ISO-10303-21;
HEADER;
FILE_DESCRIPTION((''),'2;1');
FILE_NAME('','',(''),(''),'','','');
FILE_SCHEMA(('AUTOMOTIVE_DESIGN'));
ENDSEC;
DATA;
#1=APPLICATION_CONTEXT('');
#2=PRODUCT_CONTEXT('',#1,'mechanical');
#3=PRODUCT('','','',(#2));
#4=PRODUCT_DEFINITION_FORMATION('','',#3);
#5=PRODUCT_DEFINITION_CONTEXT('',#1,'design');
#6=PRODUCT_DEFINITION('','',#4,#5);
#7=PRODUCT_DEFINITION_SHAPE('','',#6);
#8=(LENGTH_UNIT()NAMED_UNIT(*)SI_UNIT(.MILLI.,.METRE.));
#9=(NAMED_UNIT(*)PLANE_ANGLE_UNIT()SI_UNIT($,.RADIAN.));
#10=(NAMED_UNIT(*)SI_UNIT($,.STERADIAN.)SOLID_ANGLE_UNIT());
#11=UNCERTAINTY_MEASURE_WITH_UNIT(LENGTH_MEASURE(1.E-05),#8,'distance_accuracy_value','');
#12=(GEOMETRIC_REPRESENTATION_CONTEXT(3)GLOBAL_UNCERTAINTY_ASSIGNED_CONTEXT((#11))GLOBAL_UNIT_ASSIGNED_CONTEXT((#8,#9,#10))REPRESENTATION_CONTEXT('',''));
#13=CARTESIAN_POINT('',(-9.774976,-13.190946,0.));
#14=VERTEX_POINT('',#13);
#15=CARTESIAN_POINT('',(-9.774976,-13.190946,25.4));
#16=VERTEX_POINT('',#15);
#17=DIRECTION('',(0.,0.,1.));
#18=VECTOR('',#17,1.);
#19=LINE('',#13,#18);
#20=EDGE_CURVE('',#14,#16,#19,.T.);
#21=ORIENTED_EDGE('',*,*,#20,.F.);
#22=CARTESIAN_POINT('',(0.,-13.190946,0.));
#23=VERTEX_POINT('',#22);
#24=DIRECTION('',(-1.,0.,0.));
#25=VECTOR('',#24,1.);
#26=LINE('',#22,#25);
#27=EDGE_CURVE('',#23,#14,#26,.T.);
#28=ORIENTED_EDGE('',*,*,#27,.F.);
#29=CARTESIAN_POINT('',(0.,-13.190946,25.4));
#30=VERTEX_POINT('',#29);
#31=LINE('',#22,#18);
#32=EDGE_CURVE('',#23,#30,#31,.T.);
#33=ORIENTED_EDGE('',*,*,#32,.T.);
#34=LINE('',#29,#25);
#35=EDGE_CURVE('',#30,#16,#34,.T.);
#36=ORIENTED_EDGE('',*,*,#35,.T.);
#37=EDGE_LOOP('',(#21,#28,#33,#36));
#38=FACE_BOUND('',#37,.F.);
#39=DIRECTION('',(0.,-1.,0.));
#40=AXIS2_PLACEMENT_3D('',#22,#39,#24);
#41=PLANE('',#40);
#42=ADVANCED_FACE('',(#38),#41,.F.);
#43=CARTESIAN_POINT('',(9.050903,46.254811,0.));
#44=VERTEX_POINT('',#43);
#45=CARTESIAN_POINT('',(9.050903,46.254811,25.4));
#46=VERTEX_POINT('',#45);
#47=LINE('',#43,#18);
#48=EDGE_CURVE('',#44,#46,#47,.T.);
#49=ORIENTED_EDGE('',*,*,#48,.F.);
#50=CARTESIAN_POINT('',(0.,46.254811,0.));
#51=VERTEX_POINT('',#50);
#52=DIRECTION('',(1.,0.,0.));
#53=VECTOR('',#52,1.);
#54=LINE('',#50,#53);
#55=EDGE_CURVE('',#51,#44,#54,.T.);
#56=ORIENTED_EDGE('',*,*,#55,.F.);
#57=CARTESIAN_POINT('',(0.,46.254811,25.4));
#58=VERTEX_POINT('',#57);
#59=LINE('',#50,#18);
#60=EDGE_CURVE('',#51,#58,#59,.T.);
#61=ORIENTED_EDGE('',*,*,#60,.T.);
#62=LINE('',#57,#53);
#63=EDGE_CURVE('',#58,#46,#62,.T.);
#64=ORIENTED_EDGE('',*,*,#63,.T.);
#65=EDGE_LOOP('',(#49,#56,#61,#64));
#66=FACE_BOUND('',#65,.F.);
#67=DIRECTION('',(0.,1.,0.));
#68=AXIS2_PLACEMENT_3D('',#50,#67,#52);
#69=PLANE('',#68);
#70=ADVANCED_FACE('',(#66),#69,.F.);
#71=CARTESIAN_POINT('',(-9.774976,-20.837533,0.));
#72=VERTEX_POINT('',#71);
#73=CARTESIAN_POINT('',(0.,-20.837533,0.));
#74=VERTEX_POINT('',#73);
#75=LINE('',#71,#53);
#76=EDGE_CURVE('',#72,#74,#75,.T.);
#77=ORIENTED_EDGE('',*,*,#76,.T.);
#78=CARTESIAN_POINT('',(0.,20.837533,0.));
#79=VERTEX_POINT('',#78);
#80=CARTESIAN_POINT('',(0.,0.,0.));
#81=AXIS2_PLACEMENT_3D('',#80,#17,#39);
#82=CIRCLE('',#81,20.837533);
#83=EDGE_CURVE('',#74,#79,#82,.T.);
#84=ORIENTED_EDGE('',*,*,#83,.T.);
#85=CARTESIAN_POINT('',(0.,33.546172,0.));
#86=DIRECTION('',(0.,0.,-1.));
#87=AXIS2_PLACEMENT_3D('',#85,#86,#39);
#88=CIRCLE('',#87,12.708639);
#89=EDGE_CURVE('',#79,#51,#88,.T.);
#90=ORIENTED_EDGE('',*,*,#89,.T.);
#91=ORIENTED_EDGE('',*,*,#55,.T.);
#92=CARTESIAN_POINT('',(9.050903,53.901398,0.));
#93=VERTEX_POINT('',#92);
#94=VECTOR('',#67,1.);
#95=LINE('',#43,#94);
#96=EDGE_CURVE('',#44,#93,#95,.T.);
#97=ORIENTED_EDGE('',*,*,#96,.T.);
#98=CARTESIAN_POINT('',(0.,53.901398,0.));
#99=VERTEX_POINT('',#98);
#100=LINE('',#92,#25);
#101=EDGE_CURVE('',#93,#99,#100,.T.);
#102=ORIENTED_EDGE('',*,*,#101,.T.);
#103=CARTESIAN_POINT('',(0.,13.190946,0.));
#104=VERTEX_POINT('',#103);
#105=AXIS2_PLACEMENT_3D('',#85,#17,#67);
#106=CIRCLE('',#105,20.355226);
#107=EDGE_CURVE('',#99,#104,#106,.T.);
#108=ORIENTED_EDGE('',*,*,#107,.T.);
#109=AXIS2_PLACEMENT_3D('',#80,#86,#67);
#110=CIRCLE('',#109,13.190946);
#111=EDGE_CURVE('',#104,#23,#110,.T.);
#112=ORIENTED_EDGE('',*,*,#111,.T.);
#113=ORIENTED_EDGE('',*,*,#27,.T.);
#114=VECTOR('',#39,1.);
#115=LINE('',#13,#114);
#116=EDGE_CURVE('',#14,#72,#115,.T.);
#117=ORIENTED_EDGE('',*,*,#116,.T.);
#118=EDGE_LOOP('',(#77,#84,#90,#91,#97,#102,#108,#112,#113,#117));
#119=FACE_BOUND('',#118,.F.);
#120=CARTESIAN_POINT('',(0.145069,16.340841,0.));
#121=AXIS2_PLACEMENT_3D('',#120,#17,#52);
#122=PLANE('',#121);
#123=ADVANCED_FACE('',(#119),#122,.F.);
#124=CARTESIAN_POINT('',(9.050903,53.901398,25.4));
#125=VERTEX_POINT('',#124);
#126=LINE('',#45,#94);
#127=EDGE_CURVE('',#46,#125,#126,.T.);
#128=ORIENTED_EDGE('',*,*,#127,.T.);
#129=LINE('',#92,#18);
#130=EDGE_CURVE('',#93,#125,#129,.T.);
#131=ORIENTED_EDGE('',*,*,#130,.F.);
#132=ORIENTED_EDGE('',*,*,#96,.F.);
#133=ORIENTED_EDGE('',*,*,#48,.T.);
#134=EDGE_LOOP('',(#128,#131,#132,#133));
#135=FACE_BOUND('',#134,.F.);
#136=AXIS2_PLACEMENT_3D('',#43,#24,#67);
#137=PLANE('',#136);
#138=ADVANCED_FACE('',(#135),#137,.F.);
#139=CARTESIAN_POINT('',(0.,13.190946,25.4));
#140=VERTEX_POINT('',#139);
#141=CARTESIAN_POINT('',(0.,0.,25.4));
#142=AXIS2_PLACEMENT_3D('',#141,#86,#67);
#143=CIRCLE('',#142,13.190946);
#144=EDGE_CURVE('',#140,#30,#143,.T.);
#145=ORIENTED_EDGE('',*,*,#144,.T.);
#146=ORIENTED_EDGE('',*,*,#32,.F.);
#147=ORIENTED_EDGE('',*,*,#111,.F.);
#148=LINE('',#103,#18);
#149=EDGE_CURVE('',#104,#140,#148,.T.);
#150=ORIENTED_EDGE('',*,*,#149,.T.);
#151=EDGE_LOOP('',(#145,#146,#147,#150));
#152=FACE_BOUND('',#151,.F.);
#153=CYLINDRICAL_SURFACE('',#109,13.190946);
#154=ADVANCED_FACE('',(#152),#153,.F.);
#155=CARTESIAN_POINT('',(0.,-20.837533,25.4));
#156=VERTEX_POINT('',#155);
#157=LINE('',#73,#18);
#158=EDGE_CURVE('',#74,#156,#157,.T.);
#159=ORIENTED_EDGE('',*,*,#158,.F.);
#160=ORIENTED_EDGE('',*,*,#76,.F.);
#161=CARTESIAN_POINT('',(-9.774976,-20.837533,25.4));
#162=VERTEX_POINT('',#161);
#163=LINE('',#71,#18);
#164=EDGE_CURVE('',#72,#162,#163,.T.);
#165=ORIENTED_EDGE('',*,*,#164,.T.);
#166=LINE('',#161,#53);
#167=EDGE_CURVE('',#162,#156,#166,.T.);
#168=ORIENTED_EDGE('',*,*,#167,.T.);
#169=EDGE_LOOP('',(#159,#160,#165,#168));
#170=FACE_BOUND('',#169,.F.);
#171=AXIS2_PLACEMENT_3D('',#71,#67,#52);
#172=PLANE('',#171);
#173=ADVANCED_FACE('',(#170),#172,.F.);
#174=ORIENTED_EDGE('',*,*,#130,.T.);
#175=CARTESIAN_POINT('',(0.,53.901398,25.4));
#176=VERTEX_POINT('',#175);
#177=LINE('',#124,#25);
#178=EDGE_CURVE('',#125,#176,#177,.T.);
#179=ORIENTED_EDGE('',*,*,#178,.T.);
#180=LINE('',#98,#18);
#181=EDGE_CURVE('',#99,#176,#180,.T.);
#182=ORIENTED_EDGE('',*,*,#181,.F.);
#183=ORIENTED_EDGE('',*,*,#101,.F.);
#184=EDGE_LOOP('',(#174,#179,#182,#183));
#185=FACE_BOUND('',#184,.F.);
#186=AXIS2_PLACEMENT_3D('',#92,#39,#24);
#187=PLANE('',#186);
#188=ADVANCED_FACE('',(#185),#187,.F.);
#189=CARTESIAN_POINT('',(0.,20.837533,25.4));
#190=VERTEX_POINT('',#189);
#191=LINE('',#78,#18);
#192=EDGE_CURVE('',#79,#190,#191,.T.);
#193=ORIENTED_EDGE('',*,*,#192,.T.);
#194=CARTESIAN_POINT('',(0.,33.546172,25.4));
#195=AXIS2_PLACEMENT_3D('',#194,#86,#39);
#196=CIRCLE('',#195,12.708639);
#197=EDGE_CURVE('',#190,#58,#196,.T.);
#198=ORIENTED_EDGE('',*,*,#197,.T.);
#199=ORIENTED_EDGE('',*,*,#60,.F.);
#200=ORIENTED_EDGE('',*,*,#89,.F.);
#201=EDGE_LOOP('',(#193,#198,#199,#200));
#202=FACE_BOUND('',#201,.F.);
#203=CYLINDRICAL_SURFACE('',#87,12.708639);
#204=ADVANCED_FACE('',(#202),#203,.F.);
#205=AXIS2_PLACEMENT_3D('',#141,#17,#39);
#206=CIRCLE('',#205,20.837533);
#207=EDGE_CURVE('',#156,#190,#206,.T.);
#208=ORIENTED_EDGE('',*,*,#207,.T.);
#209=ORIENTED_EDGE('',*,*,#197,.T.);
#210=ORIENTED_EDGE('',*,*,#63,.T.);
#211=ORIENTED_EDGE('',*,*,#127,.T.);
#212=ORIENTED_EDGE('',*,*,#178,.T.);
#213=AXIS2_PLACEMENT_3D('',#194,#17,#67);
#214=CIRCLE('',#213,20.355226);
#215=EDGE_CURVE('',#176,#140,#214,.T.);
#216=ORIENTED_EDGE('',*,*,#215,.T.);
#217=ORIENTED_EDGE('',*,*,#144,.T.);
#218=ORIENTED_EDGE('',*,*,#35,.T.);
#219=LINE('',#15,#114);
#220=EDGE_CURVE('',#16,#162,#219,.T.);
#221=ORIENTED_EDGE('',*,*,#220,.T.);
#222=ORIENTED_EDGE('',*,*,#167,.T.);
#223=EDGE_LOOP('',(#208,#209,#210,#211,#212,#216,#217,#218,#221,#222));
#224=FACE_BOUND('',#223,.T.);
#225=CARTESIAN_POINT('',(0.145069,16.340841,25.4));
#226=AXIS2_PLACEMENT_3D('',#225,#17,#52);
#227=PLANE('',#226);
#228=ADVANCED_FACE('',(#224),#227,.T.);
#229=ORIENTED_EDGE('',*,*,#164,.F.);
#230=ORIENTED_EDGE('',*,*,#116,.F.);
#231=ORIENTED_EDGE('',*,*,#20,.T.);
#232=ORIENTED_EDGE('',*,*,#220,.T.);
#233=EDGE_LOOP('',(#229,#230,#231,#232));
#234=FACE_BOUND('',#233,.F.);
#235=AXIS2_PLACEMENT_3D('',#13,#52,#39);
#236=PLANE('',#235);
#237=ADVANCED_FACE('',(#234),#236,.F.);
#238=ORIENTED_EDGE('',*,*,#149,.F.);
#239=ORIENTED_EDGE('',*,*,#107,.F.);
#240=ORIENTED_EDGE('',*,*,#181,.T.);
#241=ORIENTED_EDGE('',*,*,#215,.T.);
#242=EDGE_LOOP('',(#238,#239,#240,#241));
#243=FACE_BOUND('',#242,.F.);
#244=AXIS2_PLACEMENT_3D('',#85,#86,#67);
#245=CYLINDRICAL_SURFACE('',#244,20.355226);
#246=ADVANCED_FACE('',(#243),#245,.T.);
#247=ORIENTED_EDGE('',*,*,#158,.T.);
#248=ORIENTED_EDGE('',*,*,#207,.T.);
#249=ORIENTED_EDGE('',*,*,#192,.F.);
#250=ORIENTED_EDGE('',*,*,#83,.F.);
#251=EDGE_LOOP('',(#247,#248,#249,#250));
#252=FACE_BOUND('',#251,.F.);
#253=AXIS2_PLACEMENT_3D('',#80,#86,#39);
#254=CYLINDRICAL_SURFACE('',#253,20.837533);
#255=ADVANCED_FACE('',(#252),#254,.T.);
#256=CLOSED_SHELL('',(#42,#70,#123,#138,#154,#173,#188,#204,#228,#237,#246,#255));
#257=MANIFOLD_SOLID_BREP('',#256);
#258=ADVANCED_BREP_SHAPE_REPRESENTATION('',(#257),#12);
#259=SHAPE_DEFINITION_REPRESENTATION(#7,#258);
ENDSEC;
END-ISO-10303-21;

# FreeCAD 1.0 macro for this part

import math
import FreeCAD as App
import Part
import Sketcher
from FreeCAD import Vector
Q = App.Units.Quantity

doc = App.newDocument("Part")
body = doc.addObject("PartDesign::Body", "Body")

# Sketch on XY plane
sketch1 = body.newObject("Sketcher::SketchObject", "Sketch")
sketch1.AttachmentSupport = (doc.getObject("XY_Plane"), [""])
sketch1.MapMode = "FlatFace"
sketch1.addGeometry([
    Part.ArcOfCircle(Part.Circle(Vector(0, 0, 0), Vector(0, 0, 1), 13), math.radians(-90), math.radians(90)),  # 0
    Part.LineSegment(Vector(0, -13, 0), Vector(-10, -13, 0)),  # 1
    Part.LineSegment(Vector(-10, -13, 0), Vector(-10, -21, 0)),  # 2
    Part.LineSegment(Vector(-10, -21, 0), Vector(0, -21, 0)),  # 3
    Part.ArcOfCircle(Part.Circle(Vector(0, 0, 0), Vector(0, 0, 1), 21), math.radians(-90), math.radians(90)),  # 4
    Part.ArcOfCircle(Part.Circle(Vector(0, 34, 0), Vector(0, 0, 1), 13), math.radians(90), math.radians(270)),  # 5
    Part.LineSegment(Vector(0, 46, 0), Vector(9, 46, 0)),  # 6
    Part.LineSegment(Vector(9, 46, 0), Vector(9, 54, 0)),  # 7
    Part.LineSegment(Vector(9, 54, 0), Vector(0, 54, 0)),  # 8
    Part.ArcOfCircle(Part.Circle(Vector(0, 34, 0), Vector(0, 0, 1), 20), math.radians(90), math.radians(270)),  # 9
], False)
sketch1.addConstraint([
    Sketcher.Constraint("Tangent", 0, 1, 1, 1),
    Sketcher.Constraint("Coincident", 1, 2, 2, 1),
    Sketcher.Constraint("Coincident", 2, 2, 3, 1),
    Sketcher.Constraint("Tangent", 3, 2, 4, 1),
    Sketcher.Constraint("Tangent", 4, 2, 5, 2),
    Sketcher.Constraint("Tangent", 5, 1, 6, 1),
    Sketcher.Constraint("Coincident", 6, 2, 7, 1),
    Sketcher.Constraint("Coincident", 7, 2, 8, 1),
    Sketcher.Constraint("Tangent", 8, 2, 9, 1),
    Sketcher.Constraint("Tangent", 9, 2, 0, 2),
    Sketcher.Constraint("Horizontal", 1),
    Sketcher.Constraint("Vertical", 2),
    Sketcher.Constraint("Horizontal", 3),
    Sketcher.Constraint("Horizontal", 6),
    Sketcher.Constraint("Vertical", 7),
    Sketcher.Constraint("Horizontal", 8),
    Sketcher.Constraint("Coincident", 0, 3, -1, 1),
    Sketcher.Constraint("Coincident", 4, 3, -1, 1),
    Sketcher.Constraint("Coincident", 9, 3, 5, 3),
    Sketcher.Constraint("PointOnObject", 5, 3, -2),
    Sketcher.Constraint("Radius", 5, Q("12.708639 mm")),
    Sketcher.Constraint("Radius", 0, Q("13.190946 mm")),
    Sketcher.Constraint("Radius", 4, Q("20.837533 mm")),
    Sketcher.Constraint("DistanceX", 1, 2, 1, 1, Q("9.774976 mm")),
    Sketcher.Constraint("DistanceX", 6, 1, 6, 2, Q("9.050903 mm")),
])
pad1 = body.newObject("PartDesign::Pad", "Pad")
pad1.Profile = sketch1
pad1.Length = Q("1 in")

doc.recompute()
